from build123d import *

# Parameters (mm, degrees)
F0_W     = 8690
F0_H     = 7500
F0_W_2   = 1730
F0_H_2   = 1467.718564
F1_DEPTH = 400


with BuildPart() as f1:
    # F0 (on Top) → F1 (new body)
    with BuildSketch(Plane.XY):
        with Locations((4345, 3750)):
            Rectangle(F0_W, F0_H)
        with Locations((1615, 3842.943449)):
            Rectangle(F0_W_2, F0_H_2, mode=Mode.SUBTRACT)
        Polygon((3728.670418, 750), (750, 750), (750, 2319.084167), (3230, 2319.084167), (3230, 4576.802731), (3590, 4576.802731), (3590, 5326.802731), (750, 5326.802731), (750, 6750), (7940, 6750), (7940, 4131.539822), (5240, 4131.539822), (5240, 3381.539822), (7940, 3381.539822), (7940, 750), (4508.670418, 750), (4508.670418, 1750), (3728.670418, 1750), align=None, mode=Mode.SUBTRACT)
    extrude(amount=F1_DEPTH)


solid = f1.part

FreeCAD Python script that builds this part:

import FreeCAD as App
import Part
import Sketcher

V = App.Vector

doc = App.newDocument("Part")
body = doc.addObject("PartDesign::Body", "Body")

sketch1 = body.newObject("Sketcher::SketchObject", "Sketch")
sketch1.AttachmentSupport = (doc.getObject("XY_Plane"), [""])
sketch1.MapMode = "FlatFace"
sketch1.addGeometry([
    Part.LineSegment(V(0, 7500, 0), V(0, 0, 0)),
    Part.LineSegment(V(0, 0, 0), V(8690, 0, 0)),
    Part.LineSegment(V(8690, 0, 0), V(8690, 7500, 0)),
    Part.LineSegment(V(8690, 7500, 0), V(0, 7500, 0)),
    Part.LineSegment(V(2480, 3109.084167, 0), V(750, 3109.084167, 0)),
    Part.LineSegment(V(750, 3109.084167, 0), V(750, 4576.802731, 0)),
    Part.LineSegment(V(750, 4576.802731, 0), V(2480, 4576.802731, 0)),
    Part.LineSegment(V(2480, 4576.802731, 0), V(2480, 3109.084167, 0)),
    Part.LineSegment(V(3728.670418, 1750, 0), V(3728.670418, 750, 0)),
    Part.LineSegment(V(3728.670418, 750, 0), V(750, 750, 0)),
    Part.LineSegment(V(750, 750, 0), V(750, 2319.084167, 0)),
    Part.LineSegment(V(750, 2319.084167, 0), V(3230, 2319.084167, 0)),
    Part.LineSegment(V(3230, 2319.084167, 0), V(3230, 4576.802731, 0)),
    Part.LineSegment(V(3230, 4576.802731, 0), V(3590, 4576.802731, 0)),
    Part.LineSegment(V(3590, 4576.802731, 0), V(3590, 5326.802731, 0)),
    Part.LineSegment(V(3590, 5326.802731, 0), V(750, 5326.802731, 0)),
    Part.LineSegment(V(750, 5326.802731, 0), V(750, 6750, 0)),
    Part.LineSegment(V(750, 6750, 0), V(7940, 6750, 0)),
    Part.LineSegment(V(7940, 6750, 0), V(7940, 4131.539822, 0)),
    Part.LineSegment(V(7940, 4131.539822, 0), V(5240, 4131.539822, 0)),
    Part.LineSegment(V(5240, 4131.539822, 0), V(5240, 3381.539822, 0)),
    Part.LineSegment(V(5240, 3381.539822, 0), V(7940, 3381.539822, 0)),
    Part.LineSegment(V(7940, 3381.539822, 0), V(7940, 750, 0)),
    Part.LineSegment(V(7940, 750, 0), V(4508.670418, 750, 0)),
    Part.LineSegment(V(4508.670418, 750, 0), V(4508.670418, 1750, 0)),
    Part.LineSegment(V(4508.670418, 1750, 0), V(3728.670418, 1750, 0)),
], False)
sketch1.addConstraint([
    Sketcher.Constraint("Coincident", 0, 2, 1, 1),
    Sketcher.Constraint("Coincident", 1, 2, 2, 1),
    Sketcher.Constraint("Coincident", 2, 2, 3, 1),
    Sketcher.Constraint("Coincident", 3, 2, 0, 1),
    Sketcher.Constraint("Coincident", 4, 2, 5, 1),
    Sketcher.Constraint("Coincident", 5, 2, 6, 1),
    Sketcher.Constraint("Coincident", 6, 2, 7, 1),
    Sketcher.Constraint("Coincident", 7, 2, 4, 1),
    Sketcher.Constraint("Coincident", 8, 2, 9, 1),
    Sketcher.Constraint("Coincident", 9, 2, 10, 1),
    Sketcher.Constraint("Coincident", 10, 2, 11, 1),
    Sketcher.Constraint("Coincident", 11, 2, 12, 1),
    Sketcher.Constraint("Coincident", 12, 2, 13, 1),
    Sketcher.Constraint("Coincident", 13, 2, 14, 1),
    Sketcher.Constraint("Coincident", 14, 2, 15, 1),
    Sketcher.Constraint("Coincident", 15, 2, 16, 1),
    Sketcher.Constraint("Coincident", 16, 2, 17, 1),
    Sketcher.Constraint("Coincident", 17, 2, 18, 1),
    Sketcher.Constraint("Coincident", 18, 2, 19, 1),
    Sketcher.Constraint("Coincident", 19, 2, 20, 1),
    Sketcher.Constraint("Coincident", 20, 2, 21, 1),
    Sketcher.Constraint("Coincident", 21, 2, 22, 1),
    Sketcher.Constraint("Coincident", 22, 2, 23, 1),
    Sketcher.Constraint("Coincident", 23, 2, 24, 1),
    Sketcher.Constraint("Coincident", 24, 2, 25, 1),
    Sketcher.Constraint("Coincident", 25, 2, 8, 1),
    Sketcher.Constraint("Vertical", 0),
    Sketcher.Constraint("Horizontal", 1),
    Sketcher.Constraint("Vertical", 2),
    Sketcher.Constraint("Horizontal", 3),
    Sketcher.Constraint("Horizontal", 4),
    Sketcher.Constraint("Vertical", 5),
    Sketcher.Constraint("Horizontal", 6),
    Sketcher.Constraint("Vertical", 7),
    Sketcher.Constraint("Vertical", 8),
    Sketcher.Constraint("Horizontal", 9),
    Sketcher.Constraint("Vertical", 10),
    Sketcher.Constraint("Horizontal", 11),
    Sketcher.Constraint("Vertical", 12),
    Sketcher.Constraint("Horizontal", 13),
    Sketcher.Constraint("Vertical", 14),
    Sketcher.Constraint("Horizontal", 15),
    Sketcher.Constraint("Vertical", 16),
    Sketcher.Constraint("Horizontal", 17),
    Sketcher.Constraint("Vertical", 18),
    Sketcher.Constraint("Horizontal", 19),
    Sketcher.Constraint("Vertical", 20),
    Sketcher.Constraint("Horizontal", 21),
    Sketcher.Constraint("Vertical", 22),
    Sketcher.Constraint("Horizontal", 23),
    Sketcher.Constraint("Vertical", 24),
    Sketcher.Constraint("Horizontal", 25),
    Sketcher.Constraint("Coincident", 0, 2, -1, 1),
    Sketcher.Constraint("Horizontal", 6, 2, 12, 2),
    Sketcher.Constraint("Horizontal", 9, 2, 22, 2),
    Sketcher.Constraint("Vertical", 5, 2, 9, 2),
    Sketcher.Constraint("Vertical", 10, 2, 15, 2),
    Sketcher.Constraint("Vertical", 18, 2, 21, 2),
    Sketcher.Constraint("Equal", 14, 20),
    Sketcher.Constraint("DistanceX", 1, 1, 1, 2, 8690.0),
    Sketcher.Constraint("DistanceX", 4, 2, 4, 1, 1730.0),
    Sketcher.Constraint("DistanceX", 11, 1, 11, 2, 2480.0),
    Sketcher.Constraint("DistanceX", 13, 1, 13, 2, 360.0),
    Sketcher.Constraint("DistanceX", 17, 1, 17, 2, 7190.0),
    Sketcher.Constraint("DistanceX", 19, 2, 19, 1, 2700.0),
    Sketcher.Constraint("DistanceX", 25, 2, 25, 1, 780.0),
    Sketcher.Constraint("DistanceY", 0, 2, 0, 1, 7500.0),
    Sketcher.Constraint("DistanceY", 8, 2, 8, 1, 1000.0),
    Sketcher.Constraint("DistanceY", 14, 1, 14, 2, 750.0),
    Sketcher.Constraint("DistanceX", -1, 1, 4, 2, 750.0),
    Sketcher.Constraint("DistanceY", -1, 1, 8, 2, 750.0),
    Sketcher.Constraint("DistanceY", -1, 1, 16, 2, 6750.0),
    Sketcher.Constraint("DistanceY", 10, 2, 4, 2, 790.0),
    Sketcher.Constraint("DistanceX", 9, 2, 9, 1, 2978.670418),
    Sketcher.Constraint("DistanceY", 16, 1, 16, 2, 1423.197269),
    Sketcher.Constraint("DistanceY", 18, 2, 18, 1, 2618.460178),
    Sketcher.Constraint("DistanceY", 5, 1, 5, 2, 1467.718564),
])
pad1 = body.newObject("PartDesign::Pad", "Pad")
pad1.Profile = sketch1
pad1.Length = 400

doc.recompute()
